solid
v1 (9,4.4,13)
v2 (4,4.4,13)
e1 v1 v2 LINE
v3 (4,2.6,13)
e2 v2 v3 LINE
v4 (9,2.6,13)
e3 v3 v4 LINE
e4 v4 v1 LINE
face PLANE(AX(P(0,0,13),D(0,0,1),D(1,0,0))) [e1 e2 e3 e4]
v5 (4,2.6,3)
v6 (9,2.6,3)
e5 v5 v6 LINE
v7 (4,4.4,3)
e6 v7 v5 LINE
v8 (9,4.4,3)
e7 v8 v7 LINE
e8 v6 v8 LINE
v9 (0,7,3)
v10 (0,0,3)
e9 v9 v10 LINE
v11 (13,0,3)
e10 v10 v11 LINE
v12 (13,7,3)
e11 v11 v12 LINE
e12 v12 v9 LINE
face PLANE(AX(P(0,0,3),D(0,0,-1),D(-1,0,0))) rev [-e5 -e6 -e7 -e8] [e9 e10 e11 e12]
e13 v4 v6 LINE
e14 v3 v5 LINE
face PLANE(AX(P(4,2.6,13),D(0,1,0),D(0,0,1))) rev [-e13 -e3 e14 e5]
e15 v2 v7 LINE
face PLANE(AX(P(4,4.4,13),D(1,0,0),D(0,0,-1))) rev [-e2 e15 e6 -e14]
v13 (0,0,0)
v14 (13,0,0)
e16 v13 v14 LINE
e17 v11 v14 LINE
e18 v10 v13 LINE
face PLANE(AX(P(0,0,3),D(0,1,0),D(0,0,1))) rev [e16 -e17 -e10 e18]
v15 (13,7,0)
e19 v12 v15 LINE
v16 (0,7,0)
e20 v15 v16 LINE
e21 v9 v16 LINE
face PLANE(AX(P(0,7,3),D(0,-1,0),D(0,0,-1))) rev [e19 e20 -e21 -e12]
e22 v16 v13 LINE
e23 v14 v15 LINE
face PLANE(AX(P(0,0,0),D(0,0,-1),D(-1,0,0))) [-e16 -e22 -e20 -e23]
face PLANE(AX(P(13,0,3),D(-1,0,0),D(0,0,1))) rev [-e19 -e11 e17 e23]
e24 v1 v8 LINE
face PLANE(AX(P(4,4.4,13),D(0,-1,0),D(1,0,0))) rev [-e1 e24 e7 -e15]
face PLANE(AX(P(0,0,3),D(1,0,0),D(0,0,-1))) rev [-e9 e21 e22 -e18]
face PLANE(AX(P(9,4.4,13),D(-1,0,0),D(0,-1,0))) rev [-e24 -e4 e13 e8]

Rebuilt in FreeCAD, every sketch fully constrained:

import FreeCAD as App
import Part
import Sketcher
from FreeCAD import Vector
Q = App.Units.Quantity

doc = App.newDocument("Part")
params = doc.addObject("Spreadsheet::Sheet", "Params")
for row, (alias, value) in enumerate([
    ("sketch1_width", "13 mm"),
    ("sketch1_height", "7 mm"),
    ("pad1_length", "3 mm"),
    ("sketch2_width", "5 mm"),
    ("sketch2_height", "1.8 mm"),
    ("pad2_length", "10 mm"),
], start=1):
    params.set(f"A{row}", alias)
    params.set(f"B{row}", "=" + value)
    params.setAlias(f"B{row}", alias)

body = doc.addObject("PartDesign::Body", "Body")

sketch1 = body.newObject("Sketcher::SketchObject", "Sketch")
sketch1.AttachmentSupport = (doc.getObject("XY_Plane"), [""])
sketch1.MapMode = "FlatFace"
sketch1.addGeometry([
    Part.LineSegment(Vector(0, 7, 0), Vector(0, 0, 0)),
    Part.LineSegment(Vector(0, 0, 0), Vector(13, 0, 0)),
    Part.LineSegment(Vector(13, 0, 0), Vector(13, 7, 0)),
    Part.LineSegment(Vector(13, 7, 0), Vector(0, 7, 0)),
], False)
sketch1.addConstraint([
    Sketcher.Constraint("Coincident", 0, 2, 1, 1),
    Sketcher.Constraint("Coincident", 1, 2, 2, 1),
    Sketcher.Constraint("Coincident", 2, 2, 3, 1),
    Sketcher.Constraint("Coincident", 3, 2, 0, 1),
    Sketcher.Constraint("Vertical", 0),
    Sketcher.Constraint("Horizontal", 1),
    Sketcher.Constraint("Vertical", 2),
    Sketcher.Constraint("Horizontal", 3),
    Sketcher.Constraint("Coincident", 0, 2, -1, 1),
    Sketcher.Constraint("DistanceX", 1, 1, 1, 2, Q("13 mm")),
    Sketcher.Constraint("DistanceY", 0, 2, 0, 1, Q("7 mm")),
])
sketch1.setExpression("Constraints[9]", "Params.sketch1_width")
sketch1.setExpression("Constraints[10]", "Params.sketch1_height")
pad1 = body.newObject("PartDesign::Pad", "Pad")
pad1.Profile = sketch1
pad1.setExpression("Length", "Params.pad1_length")

sketch2 = body.newObject("Sketcher::SketchObject", "Sketch001")
sketch2.AttachmentSupport = (doc.getObject("XY_Plane"), [""])
sketch2.MapMode = "FlatFace"
sketch2.AttachmentOffset = App.Placement(Vector(0, 0, 3), App.Rotation())
sketch2.addGeometry([
    Part.LineSegment(Vector(4, 4.4, 0), Vector(4, 2.6, 0)),
    Part.LineSegment(Vector(4, 2.6, 0), Vector(9, 2.6, 0)),
    Part.LineSegment(Vector(9, 2.6, 0), Vector(9, 4.4, 0)),
    Part.LineSegment(Vector(9, 4.4, 0), Vector(4, 4.4, 0)),
], False)
sketch2.addConstraint([
    Sketcher.Constraint("Coincident", 0, 2, 1, 1),
    Sketcher.Constraint("Coincident", 1, 2, 2, 1),
    Sketcher.Constraint("Coincident", 2, 2, 3, 1),
    Sketcher.Constraint("Coincident", 3, 2, 0, 1),
    Sketcher.Constraint("Vertical", 0),
    Sketcher.Constraint("Horizontal", 1),
    Sketcher.Constraint("Vertical", 2),
    Sketcher.Constraint("Horizontal", 3),
    Sketcher.Constraint("DistanceX", 1, 1, 1, 2, Q("5 mm")),
    Sketcher.Constraint("DistanceY", 0, 2, 0, 1, Q("1.8 mm")),
    Sketcher.Constraint("DistanceX", -1, 1, 0, 2, Q("4 mm")),
    Sketcher.Constraint("DistanceY", -1, 1, 0, 2, Q("2.6 mm")),
])
sketch2.setExpression("Constraints[8]", "Params.sketch2_width")
sketch2.setExpression("Constraints[9]", "Params.sketch2_height")
pad2 = body.newObject("PartDesign::Pad", "Pad001")
pad2.Profile = sketch2
pad2.setExpression("Length", "Params.pad2_length")

doc.recompute()
